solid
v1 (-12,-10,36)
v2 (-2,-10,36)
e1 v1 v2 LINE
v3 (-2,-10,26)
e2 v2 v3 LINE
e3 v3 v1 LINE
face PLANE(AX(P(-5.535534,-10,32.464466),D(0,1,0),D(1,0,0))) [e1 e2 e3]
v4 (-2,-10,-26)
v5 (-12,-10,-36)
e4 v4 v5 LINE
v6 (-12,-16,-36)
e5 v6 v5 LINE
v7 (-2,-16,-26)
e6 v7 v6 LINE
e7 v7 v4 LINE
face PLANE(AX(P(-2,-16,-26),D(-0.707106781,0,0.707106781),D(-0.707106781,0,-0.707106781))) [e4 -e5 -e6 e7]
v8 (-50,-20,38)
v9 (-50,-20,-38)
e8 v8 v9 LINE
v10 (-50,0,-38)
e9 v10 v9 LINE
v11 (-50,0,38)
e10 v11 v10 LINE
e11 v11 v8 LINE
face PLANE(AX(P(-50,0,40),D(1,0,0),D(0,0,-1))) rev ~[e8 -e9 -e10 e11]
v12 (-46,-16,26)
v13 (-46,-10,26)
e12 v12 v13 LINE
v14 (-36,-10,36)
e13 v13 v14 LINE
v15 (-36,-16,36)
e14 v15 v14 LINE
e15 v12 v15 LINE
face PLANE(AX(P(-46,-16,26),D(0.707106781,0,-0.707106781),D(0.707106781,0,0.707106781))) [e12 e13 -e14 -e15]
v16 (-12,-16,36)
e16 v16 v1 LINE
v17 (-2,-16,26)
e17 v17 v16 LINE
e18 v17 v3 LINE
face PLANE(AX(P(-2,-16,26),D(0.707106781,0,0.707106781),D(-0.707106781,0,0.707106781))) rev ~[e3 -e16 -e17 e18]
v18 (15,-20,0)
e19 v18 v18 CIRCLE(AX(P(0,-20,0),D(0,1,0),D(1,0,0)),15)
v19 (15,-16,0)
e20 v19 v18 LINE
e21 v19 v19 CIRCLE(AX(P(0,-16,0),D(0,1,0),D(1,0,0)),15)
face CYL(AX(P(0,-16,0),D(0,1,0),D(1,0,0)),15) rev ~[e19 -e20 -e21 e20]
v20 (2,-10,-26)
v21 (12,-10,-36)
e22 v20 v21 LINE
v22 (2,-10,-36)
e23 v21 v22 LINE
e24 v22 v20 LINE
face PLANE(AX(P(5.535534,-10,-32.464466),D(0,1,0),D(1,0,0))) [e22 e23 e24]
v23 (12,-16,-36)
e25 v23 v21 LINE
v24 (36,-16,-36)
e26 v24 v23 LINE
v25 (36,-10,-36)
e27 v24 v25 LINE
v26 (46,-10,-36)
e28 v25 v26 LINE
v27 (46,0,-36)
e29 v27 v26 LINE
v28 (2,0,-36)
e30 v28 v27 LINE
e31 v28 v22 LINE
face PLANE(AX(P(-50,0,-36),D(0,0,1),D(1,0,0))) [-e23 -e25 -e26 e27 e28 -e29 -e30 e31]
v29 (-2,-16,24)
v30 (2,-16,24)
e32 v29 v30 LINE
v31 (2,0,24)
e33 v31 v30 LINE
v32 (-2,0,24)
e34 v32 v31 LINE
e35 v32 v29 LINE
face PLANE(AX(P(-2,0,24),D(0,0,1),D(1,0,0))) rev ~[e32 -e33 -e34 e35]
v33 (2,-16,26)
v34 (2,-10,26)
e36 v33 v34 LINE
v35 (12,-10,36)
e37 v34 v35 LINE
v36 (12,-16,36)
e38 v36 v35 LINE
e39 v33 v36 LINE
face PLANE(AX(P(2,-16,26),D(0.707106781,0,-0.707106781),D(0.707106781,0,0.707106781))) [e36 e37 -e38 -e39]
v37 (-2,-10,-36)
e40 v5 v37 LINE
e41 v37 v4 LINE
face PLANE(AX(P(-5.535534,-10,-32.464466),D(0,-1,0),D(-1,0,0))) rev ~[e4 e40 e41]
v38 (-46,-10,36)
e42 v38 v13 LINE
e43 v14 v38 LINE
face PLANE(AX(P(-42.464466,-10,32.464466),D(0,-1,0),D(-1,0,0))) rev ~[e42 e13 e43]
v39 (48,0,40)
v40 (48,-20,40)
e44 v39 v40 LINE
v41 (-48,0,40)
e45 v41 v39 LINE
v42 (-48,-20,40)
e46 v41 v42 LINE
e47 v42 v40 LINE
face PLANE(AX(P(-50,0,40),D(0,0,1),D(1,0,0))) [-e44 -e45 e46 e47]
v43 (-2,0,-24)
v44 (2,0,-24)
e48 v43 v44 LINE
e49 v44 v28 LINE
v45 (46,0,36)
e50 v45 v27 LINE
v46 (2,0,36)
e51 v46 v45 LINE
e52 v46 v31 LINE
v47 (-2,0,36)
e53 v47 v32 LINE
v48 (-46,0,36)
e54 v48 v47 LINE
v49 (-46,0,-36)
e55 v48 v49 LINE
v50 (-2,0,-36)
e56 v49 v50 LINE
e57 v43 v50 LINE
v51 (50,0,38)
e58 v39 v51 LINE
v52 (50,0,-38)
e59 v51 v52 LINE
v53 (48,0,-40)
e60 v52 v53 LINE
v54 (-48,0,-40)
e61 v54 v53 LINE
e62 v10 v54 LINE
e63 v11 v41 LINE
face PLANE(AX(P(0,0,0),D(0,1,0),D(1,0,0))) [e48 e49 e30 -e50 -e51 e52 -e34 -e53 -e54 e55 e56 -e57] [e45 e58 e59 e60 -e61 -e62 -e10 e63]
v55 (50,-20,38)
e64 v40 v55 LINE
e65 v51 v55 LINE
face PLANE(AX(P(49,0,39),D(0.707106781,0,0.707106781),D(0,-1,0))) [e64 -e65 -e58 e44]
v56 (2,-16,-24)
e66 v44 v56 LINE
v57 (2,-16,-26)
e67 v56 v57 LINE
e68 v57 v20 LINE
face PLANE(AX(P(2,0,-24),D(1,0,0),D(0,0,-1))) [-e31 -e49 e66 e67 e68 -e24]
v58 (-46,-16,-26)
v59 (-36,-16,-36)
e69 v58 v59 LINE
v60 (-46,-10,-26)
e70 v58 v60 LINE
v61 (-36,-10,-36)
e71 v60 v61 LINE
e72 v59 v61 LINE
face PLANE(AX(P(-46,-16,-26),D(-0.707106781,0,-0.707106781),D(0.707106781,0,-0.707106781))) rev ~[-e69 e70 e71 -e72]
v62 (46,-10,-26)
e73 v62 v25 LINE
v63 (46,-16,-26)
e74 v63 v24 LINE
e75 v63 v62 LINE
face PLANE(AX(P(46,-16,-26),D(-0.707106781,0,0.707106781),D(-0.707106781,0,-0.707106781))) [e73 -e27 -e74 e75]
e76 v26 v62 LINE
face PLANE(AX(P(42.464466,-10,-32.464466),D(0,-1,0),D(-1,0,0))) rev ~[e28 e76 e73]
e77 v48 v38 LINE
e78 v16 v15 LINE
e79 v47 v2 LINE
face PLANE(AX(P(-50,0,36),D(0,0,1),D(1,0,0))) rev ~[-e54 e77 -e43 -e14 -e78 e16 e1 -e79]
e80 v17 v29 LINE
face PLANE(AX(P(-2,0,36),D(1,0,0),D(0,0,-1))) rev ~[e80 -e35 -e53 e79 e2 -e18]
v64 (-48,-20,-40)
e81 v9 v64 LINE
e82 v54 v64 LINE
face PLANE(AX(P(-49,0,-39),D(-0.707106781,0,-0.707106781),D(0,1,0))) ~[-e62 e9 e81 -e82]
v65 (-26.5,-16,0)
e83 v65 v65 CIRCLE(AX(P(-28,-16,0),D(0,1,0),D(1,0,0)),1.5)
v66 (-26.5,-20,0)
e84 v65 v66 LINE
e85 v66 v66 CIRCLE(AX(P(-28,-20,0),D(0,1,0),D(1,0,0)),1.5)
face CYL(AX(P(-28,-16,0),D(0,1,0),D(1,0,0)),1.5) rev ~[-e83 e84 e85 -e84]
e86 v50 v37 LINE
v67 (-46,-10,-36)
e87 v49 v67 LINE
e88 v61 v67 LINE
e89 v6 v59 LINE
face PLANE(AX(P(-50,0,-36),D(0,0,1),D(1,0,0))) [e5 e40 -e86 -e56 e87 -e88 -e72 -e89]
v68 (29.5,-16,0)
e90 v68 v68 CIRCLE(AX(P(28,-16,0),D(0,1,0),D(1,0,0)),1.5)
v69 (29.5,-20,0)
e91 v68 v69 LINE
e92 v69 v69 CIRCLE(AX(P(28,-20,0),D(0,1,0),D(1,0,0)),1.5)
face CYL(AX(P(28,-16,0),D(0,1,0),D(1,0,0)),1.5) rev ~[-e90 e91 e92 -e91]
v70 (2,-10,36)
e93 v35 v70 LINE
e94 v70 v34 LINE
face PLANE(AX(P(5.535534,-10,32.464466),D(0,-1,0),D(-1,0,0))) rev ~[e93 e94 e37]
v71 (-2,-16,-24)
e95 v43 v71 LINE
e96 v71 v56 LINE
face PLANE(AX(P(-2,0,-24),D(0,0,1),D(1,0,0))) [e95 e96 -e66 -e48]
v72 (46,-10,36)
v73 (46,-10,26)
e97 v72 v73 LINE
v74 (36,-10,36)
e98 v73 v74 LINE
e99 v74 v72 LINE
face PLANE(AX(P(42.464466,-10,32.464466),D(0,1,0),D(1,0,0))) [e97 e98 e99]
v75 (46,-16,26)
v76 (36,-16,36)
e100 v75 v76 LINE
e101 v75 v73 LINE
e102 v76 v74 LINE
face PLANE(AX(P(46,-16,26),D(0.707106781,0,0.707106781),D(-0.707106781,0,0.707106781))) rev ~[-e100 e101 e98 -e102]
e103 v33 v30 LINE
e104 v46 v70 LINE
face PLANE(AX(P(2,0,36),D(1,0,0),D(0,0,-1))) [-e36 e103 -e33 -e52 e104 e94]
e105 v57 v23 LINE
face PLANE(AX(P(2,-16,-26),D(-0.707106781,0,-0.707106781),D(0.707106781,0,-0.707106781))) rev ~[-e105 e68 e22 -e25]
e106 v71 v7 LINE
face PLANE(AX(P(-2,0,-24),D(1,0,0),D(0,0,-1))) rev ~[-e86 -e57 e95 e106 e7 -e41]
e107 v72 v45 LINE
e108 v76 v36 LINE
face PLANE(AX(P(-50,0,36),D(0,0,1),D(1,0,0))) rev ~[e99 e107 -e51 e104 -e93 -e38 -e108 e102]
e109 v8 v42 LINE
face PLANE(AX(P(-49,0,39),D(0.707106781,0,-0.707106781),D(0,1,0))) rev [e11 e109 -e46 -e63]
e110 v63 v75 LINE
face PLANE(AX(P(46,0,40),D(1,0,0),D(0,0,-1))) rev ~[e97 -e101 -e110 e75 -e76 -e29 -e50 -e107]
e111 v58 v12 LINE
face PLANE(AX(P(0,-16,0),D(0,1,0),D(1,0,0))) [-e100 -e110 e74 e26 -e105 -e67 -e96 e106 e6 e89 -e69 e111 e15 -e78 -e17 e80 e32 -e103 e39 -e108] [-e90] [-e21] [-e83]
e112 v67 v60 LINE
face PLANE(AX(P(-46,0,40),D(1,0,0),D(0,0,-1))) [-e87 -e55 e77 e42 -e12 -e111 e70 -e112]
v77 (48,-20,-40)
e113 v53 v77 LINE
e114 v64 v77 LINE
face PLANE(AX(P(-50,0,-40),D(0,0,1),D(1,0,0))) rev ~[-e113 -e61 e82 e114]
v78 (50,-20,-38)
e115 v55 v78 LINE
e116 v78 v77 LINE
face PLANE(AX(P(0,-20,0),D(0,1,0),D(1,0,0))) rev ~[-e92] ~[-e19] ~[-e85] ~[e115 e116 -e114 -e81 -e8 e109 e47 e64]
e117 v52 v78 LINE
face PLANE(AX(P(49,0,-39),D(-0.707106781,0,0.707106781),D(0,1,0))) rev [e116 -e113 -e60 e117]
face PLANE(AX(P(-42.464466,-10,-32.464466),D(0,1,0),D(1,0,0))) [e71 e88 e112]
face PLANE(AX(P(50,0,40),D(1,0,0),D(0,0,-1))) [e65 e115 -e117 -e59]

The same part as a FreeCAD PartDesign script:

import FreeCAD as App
import Part
import Sketcher

V = App.Vector


def edges_at(feature, points):
    """Names of the edges that pass closest to the given points."""
    edges = feature.Shape.Edges
    near = lambda p: min(range(len(edges)), key=lambda i: edges[i].distToShape(Part.Vertex(*p))[0])
    return sorted({f"Edge{near(p) + 1}" for p in points})


def faces_at(feature, points):
    """Names of the faces that lie closest to the given points."""
    faces = feature.Shape.Faces
    near = lambda p: min(range(len(faces)), key=lambda i: faces[i].distToShape(Part.Vertex(*p))[0])
    return sorted({f"Face{near(p) + 1}" for p in points})


def add_polygon(sketch, points):
    """Adds a closed chain of lines whose ends are joined by coincident constraints."""
    first, n = sketch.GeometryCount, len(points)
    for a, b in zip(points, points[1:] + points[:1]):
        sketch.addGeometry(Part.LineSegment(App.Vector(*a, 0), App.Vector(*b, 0)), False)
    for i in range(n):
        sketch.addConstraint(Sketcher.Constraint("Coincident", first + i, 2, first + (i + 1) % n, 1))

doc = App.newDocument("Part")
body = doc.addObject("PartDesign::Body", "Body")

sketch1 = body.newObject("Sketcher::SketchObject", "Sketch")
sketch1.AttachmentSupport = (doc.getObject("XZ_Plane"), [""])
sketch1.MapMode = "FlatFace"
add_polygon(sketch1, [(-50, -40), (-50, 40), (50, 40), (50, -40)])
sketch1.addConstraint(Sketcher.Constraint("Vertical", 0))
sketch1.addConstraint(Sketcher.Constraint("Horizontal", 1))
sketch1.addConstraint(Sketcher.Constraint("Vertical", 2))
sketch1.addConstraint(Sketcher.Constraint("Horizontal", 3))
sketch1.addConstraint(Sketcher.Constraint("Symmetric", 0, 2, 2, 2, -1, 1))
sketch1.addConstraint(Sketcher.Constraint("DistanceX", 1, 1, 1, 2, 100.0))
sketch1.addConstraint(Sketcher.Constraint("DistanceY", 0, 1, 0, 2, 80.0))
pad1 = body.newObject("PartDesign::Pad", "Pad")
pad1.Profile = sketch1
pad1.Length = 20
doc.recompute()

thickness = body.newObject("PartDesign::Thickness", "Thickness")
thickness.Base = (pad1, faces_at(pad1, [(0, 0, 0)]))
thickness.Value = 4
thickness.Reversed = True
thickness.Join = "Intersection"

sketch2 = body.newObject("Sketcher::SketchObject", "Sketch001")
sketch2.AttachmentSupport = (doc.getObject("XZ_Plane"), [""])
sketch2.MapMode = "FlatFace"
add_polygon(sketch2, [(-2, 24), (-2, 36), (2, 36), (2, 24)])
add_polygon(sketch2, [(-2, -36), (-2, -24), (2, -24), (2, -36)])
sketch2.addConstraint(Sketcher.Constraint("Vertical", 0))
sketch2.addConstraint(Sketcher.Constraint("Horizontal", 1))
sketch2.addConstraint(Sketcher.Constraint("Vertical", 2))
sketch2.addConstraint(Sketcher.Constraint("Horizontal", 3))
sketch2.addConstraint(Sketcher.Constraint("Vertical", 4))
sketch2.addConstraint(Sketcher.Constraint("Horizontal", 5))
sketch2.addConstraint(Sketcher.Constraint("Vertical", 6))
sketch2.addConstraint(Sketcher.Constraint("Horizontal", 7))
sketch2.addConstraint(Sketcher.Constraint("Symmetric", 2, 2, 4, 2, -1, 1))
sketch2.addConstraint(Sketcher.Constraint("Symmetric", 0, 2, 6, 2, -1, 1))
sketch2.addConstraint(Sketcher.Constraint("Vertical", 3, 2, 4, 2))
sketch2.addConstraint(Sketcher.Constraint("DistanceX", 1, 1, 1, 2, 4.0))
sketch2.addConstraint(Sketcher.Constraint("DistanceY", 0, 1, 0, 2, 12.0))
sketch2.addConstraint(Sketcher.Constraint("DistanceY", -1, 1, 0, 2, 36.0))
pad2 = body.newObject("PartDesign::Pad", "Pad001")
pad2.Profile = sketch2
pad2.Length = 16

sketch3 = body.newObject("Sketcher::SketchObject", "Sketch002")
sketch3.AttachmentSupport = (doc.getObject("XZ_Plane"), [""])
sketch3.MapMode = "FlatFace"
sketch3.AttachmentOffset = App.Placement(V(0, 0, 16), App.Rotation())
sketch3.addGeometry(Part.Circle(V(0, 0, 0), V(0, 0, 1), 15), False)
sketch3.addConstraint(Sketcher.Constraint("Coincident", 0, 3, -1, 1))
sketch3.addConstraint(Sketcher.Constraint("Diameter", 0, 30.0))
pocket1 = body.newObject("PartDesign::Pocket", "Pocket")
pocket1.Profile = sketch3
pocket1.Type = "ThroughAll"
pocket1.Reversed = True

sketch4 = body.newObject("Sketcher::SketchObject", "Sketch003")
sketch4.AttachmentSupport = (doc.getObject("XZ_Plane"), [""])
sketch4.MapMode = "FlatFace"
sketch4.AttachmentOffset = App.Placement(V(0, 0, 16), App.Rotation())
add_polygon(sketch4, [(-46, -36), (-46, -26), (-36, -36)])
add_polygon(sketch4, [(-2, -26), (-2, -36), (-12, -36)])
add_polygon(sketch4, [(-2, 26), (-12, 36), (-2, 36)])
add_polygon(sketch4, [(-36, 36), (-46, 26), (-46, 36)])
add_polygon(sketch4, [(2, 26), (2, 36), (12, 36)])
add_polygon(sketch4, [(46, 36), (46, 26), (36, 36)])
add_polygon(sketch4, [(2, -26), (12, -36), (2, -36)])
add_polygon(sketch4, [(36, -36), (46, -26), (46, -36)])
sketch4.addConstraint(Sketcher.Constraint("Vertical", 0))
sketch4.addConstraint(Sketcher.Constraint("Horizontal", 2))
sketch4.addConstraint(Sketcher.Constraint("Vertical", 3))
sketch4.addConstraint(Sketcher.Constraint("Horizontal", 4))
sketch4.addConstraint(Sketcher.Constraint("Horizontal", 7))
sketch4.addConstraint(Sketcher.Constraint("Vertical", 8))
sketch4.addConstraint(Sketcher.Constraint("Vertical", 10))
sketch4.addConstraint(Sketcher.Constraint("Horizontal", 11))
sketch4.addConstraint(Sketcher.Constraint("Vertical", 12))
sketch4.addConstraint(Sketcher.Constraint("Horizontal", 13))
sketch4.addConstraint(Sketcher.Constraint("Vertical", 15))
sketch4.addConstraint(Sketcher.Constraint("Horizontal", 17))
sketch4.addConstraint(Sketcher.Constraint("Horizontal", 19))
sketch4.addConstraint(Sketcher.Constraint("Vertical", 20))
sketch4.addConstraint(Sketcher.Constraint("Vertical", 22))
sketch4.addConstraint(Sketcher.Constraint("Horizontal", 23))
sketch4.addConstraint(Sketcher.Constraint("Symmetric", 3, 2, 12, 2, -1, 1))
sketch4.addConstraint(Sketcher.Constraint("Symmetric", 0, 2, 15, 2, -1, 1))
sketch4.addConstraint(Sketcher.Constraint("Symmetric", 1, 2, 16, 2, -1, 1))
sketch4.addConstraint(Sketcher.Constraint("Symmetric", 6, 2, 18, 2, -1, 1))
sketch4.addConstraint(Sketcher.Constraint("Symmetric", 8, 2, 20, 2, -1, 1))
sketch4.addConstraint(Sketcher.Constraint("Symmetric", 9, 2, 21, 2, -1, 1))
sketch4.addConstraint(Sketcher.Constraint("Symmetric", 11, 2, 23, 2, -1, 1))
sketch4.addConstraint(Sketcher.Constraint("Symmetric", 7, 2, 12, 2, -2))
sketch4.addConstraint(Sketcher.Constraint("Symmetric", 9, 2, 15, 2, -2))
sketch4.addConstraint(Sketcher.Constraint("Symmetric", 11, 2, 16, 2, -2))
sketch4.addConstraint(Sketcher.Constraint("Perpendicular", 1, 5))
sketch4.addConstraint(Sketcher.Constraint("Perpendicular", 5, 6))
sketch4.addConstraint(Sketcher.Constraint("Perpendicular", 6, 9))
sketch4.addConstraint(Sketcher.Constraint("Parallel", 9, 14))
sketch4.addConstraint(Sketcher.Constraint("Horizontal", 2, 2, 3, 2))
sketch4.addConstraint(Sketcher.Constraint("Horizontal", 0, 2, 5, 2))
sketch4.addConstraint(Sketcher.Constraint("Horizontal", 8, 2, 9, 2))
sketch4.addConstraint(Sketcher.Constraint("Horizontal", 9, 2, 14, 2))
sketch4.addConstraint(Sketcher.Constraint("DistanceX", 2, 2, 2, 1, 10.0))
sketch4.addConstraint(Sketcher.Constraint("DistanceX", 0, 2, -1, 1, 46.0))
sketch4.addConstraint(Sketcher.Constraint("DistanceY", 0, 2, -1, 1, 26.0))
sketch4.addConstraint(Sketcher.Constraint("DistanceX", 3, 2, -1, 1, 2.0))
pad3 = body.newObject("PartDesign::Pad", "Pad002")
pad3.Profile = sketch4
pad3.Length = 6
pad3.Reversed = True
doc.recompute()

chamfer = body.newObject("PartDesign::Chamfer", "Chamfer")
chamfer.Base = (pad3, edges_at(pad3, [
    (-50, -10, -40),
    (50, -10, -40),
    (50, -10, 40),
    (-50, -10, 40),
]))
chamfer.Size = 2

sketch5 = body.newObject("Sketcher::SketchObject", "Sketch004")
sketch5.AttachmentSupport = (doc.getObject("XZ_Plane"), [""])
sketch5.MapMode = "FlatFace"
sketch5.AttachmentOffset = App.Placement(V(0, 0, 16), App.Rotation())
sketch5.addGeometry(Part.Circle(V(-28, 0, 0), V(0, 0, 1), 1.5), False)
sketch5.addGeometry(Part.Circle(V(28, 0, 0), V(0, 0, 1), 1.5), False)
sketch5.addConstraint(Sketcher.Constraint("Equal", 0, 1))
sketch5.addConstraint(Sketcher.Constraint("Symmetric", 0, 3, 1, 3, -1, 1))
sketch5.addConstraint(Sketcher.Constraint("PointOnObject", 0, 3, -1))
sketch5.addConstraint(Sketcher.Constraint("Diameter", 0, 3.0))
sketch5.addConstraint(Sketcher.Constraint("DistanceX", 0, 3, -1, 1, 28.0))
pocket2 = body.newObject("PartDesign::Pocket", "Pocket001")
pocket2.Profile = sketch5
pocket2.Length = 4
pocket2.Reversed = True

doc.recompute()
